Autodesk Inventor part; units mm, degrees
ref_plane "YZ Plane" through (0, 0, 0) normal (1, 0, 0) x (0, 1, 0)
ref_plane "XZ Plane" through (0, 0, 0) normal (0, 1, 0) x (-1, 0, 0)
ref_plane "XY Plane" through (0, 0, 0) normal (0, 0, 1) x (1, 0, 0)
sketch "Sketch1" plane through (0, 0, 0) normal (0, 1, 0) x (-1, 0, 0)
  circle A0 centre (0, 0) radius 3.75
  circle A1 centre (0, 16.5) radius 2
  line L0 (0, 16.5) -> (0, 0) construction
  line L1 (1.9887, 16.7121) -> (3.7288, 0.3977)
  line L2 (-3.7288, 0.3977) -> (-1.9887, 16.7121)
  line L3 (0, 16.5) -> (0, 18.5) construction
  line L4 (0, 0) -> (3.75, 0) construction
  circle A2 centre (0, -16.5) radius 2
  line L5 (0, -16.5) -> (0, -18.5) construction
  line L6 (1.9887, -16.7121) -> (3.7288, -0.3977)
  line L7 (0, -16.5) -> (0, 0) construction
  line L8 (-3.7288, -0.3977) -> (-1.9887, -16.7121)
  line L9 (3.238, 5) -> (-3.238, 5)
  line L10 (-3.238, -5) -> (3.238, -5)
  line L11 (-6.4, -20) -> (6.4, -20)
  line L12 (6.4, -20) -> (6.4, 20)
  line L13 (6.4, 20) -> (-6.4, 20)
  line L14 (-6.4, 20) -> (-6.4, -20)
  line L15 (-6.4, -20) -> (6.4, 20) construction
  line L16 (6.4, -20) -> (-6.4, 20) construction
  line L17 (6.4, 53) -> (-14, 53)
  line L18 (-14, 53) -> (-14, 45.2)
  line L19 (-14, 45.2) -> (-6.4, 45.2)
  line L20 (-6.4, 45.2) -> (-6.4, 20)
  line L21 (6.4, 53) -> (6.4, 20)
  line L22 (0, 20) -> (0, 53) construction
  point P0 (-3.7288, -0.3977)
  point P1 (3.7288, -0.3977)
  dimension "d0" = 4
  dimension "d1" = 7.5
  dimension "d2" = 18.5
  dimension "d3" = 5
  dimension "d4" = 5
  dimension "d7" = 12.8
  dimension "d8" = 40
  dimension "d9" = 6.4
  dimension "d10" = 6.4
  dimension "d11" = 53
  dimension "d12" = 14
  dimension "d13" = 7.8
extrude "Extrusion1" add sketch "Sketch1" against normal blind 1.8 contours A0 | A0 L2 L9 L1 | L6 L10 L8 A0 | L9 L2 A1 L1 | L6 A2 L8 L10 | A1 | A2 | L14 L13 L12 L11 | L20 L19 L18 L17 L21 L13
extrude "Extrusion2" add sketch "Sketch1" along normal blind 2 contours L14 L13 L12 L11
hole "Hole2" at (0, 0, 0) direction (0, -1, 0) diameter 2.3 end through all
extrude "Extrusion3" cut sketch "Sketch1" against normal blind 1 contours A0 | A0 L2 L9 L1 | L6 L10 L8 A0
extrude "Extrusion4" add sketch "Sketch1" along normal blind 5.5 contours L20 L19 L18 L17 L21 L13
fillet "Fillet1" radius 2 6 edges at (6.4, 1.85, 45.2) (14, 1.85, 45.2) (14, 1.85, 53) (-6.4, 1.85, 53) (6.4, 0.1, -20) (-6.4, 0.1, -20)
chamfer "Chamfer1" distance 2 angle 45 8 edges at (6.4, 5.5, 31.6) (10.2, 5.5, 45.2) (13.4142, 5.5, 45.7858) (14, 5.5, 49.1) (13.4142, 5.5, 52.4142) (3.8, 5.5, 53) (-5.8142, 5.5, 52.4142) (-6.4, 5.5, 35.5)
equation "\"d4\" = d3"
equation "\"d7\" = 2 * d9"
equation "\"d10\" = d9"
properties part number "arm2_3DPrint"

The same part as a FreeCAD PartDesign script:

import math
import FreeCAD as App
import Part
import Sketcher

V = App.Vector


def edges_at(feature, points):
    """Names of the edges that pass closest to the given points."""
    edges = feature.Shape.Edges
    near = lambda p: min(range(len(edges)), key=lambda i: edges[i].distToShape(Part.Vertex(*p))[0])
    return sorted({f"Edge{near(p) + 1}" for p in points})


def add_polygon(sketch, points):
    """Adds a closed chain of lines whose ends are joined by coincident constraints."""
    first, n = sketch.GeometryCount, len(points)
    for a, b in zip(points, points[1:] + points[:1]):
        sketch.addGeometry(Part.LineSegment(App.Vector(*a, 0), App.Vector(*b, 0)), False)
    for i in range(n):
        sketch.addConstraint(Sketcher.Constraint("Coincident", first + i, 2, first + (i + 1) % n, 1))

doc = App.newDocument("Part")
body = doc.addObject("PartDesign::Body", "Body")

# Sketch on XZ plane
sketch1 = body.newObject("Sketcher::SketchObject", "Sketch")
sketch1.AttachmentSupport = (doc.getObject("XZ_Plane"), [""])
sketch1.MapMode = "FlatFace"
add_polygon(sketch1, [(6.4, -20), (-6.4, -20), (-6.4, 53), (14, 53), (14, 45.2), (6.4, 45.2)])  # lines 0-5
sketch1.addConstraint([
    Sketcher.Constraint("Horizontal", 0),
    Sketcher.Constraint("Vertical", 1),
    Sketcher.Constraint("Horizontal", 2),
    Sketcher.Constraint("Vertical", 3),
    Sketcher.Constraint("Horizontal", 4),
    Sketcher.Constraint("Vertical", 5),
    Sketcher.Constraint("DistanceX", 0, 2, 0, 1, 12.8),
    Sketcher.Constraint("DistanceY", 3, 2, 3, 1, 7.8),
    Sketcher.Constraint("DistanceY", -1, 1, 1, 2, 53.0),
    Sketcher.Constraint("DistanceX", -1, 1, 2, 2, 14.0),
    Sketcher.Constraint("DistanceX", 0, 2, -1, 1, 6.4),
    Sketcher.Constraint("DistanceY", 1, 1, 1, 2, 73.0),
])
pad1 = body.newObject("PartDesign::Pad", "Pad")
pad1.Profile = sketch1
pad1.Length = 1.8

# Sketch on XZ plane
sketch2 = body.newObject("Sketcher::SketchObject", "Sketch001")
sketch2.AttachmentSupport = (doc.getObject("XZ_Plane"), [""])
sketch2.MapMode = "FlatFace"
add_polygon(sketch2, [(6.4, 20), (6.4, -20), (-6.4, -20), (-6.4, 20)])  # lines 0-3
sketch2.addGeometry(Part.ArcOfCircle(Part.Circle(V(0, 0, 0), V(0, 0, 1), 3.75), math.radians(173.912059), math.radians(186.087941)), False)  # 4
sketch2.addGeometry(Part.LineSegment(V(-3.7288, -0.3977, 0), V(-1.9887, -16.7121, 0)), False)  # 5
sketch2.addGeometry(Part.ArcOfCircle(Part.Circle(V(0, -16.5, 0), V(0, 0, 1), 2), math.radians(-173.912269), math.radians(-6.087731)), False)  # 6
sketch2.addGeometry(Part.LineSegment(V(1.9887, -16.7121, 0), V(3.7288, -0.3977, 0)), False)  # 7
sketch2.addGeometry(Part.ArcOfCircle(Part.Circle(V(0, 0, 0), V(0, 0, 1), 3.75), math.radians(-6.087941), math.radians(6.087941)), False)  # 8
sketch2.addGeometry(Part.LineSegment(V(3.7288, 0.3977, 0), V(1.9887, 16.7121, 0)), False)  # 9
sketch2.addGeometry(Part.ArcOfCircle(Part.Circle(V(0, 16.5, 0), V(0, 0, 1), 2), math.radians(6.087731), math.radians(173.912269)), False)  # 10
sketch2.addGeometry(Part.LineSegment(V(-1.9887, 16.7121, 0), V(-3.7288, 0.3977, 0)), False)  # 11
sketch2.addConstraint([
    Sketcher.Constraint("Tangent", 4, 2, 5, 1),
    Sketcher.Constraint("Tangent", 5, 2, 6, 1),
    Sketcher.Constraint("Tangent", 6, 2, 7, 1),
    Sketcher.Constraint("Tangent", 7, 2, 8, 1),
    Sketcher.Constraint("Tangent", 8, 2, 9, 1),
    Sketcher.Constraint("Tangent", 9, 2, 10, 1),
    Sketcher.Constraint("Tangent", 10, 2, 11, 1),
    Sketcher.Constraint("Tangent", 11, 2, 4, 1),
    Sketcher.Constraint("Vertical", 0),
    Sketcher.Constraint("Horizontal", 1),
    Sketcher.Constraint("Vertical", 2),
    Sketcher.Constraint("Horizontal", 3),
    Sketcher.Constraint("Coincident", 4, 3, -1, 1),
    Sketcher.Constraint("Coincident", 8, 3, -1, 1),
    Sketcher.Constraint("Equal", 4, 8),
    Sketcher.Constraint("Equal", 6, 10),
    Sketcher.Constraint("Symmetric", 6, 3, 10, 3, -1, 1),
    Sketcher.Constraint("Symmetric", 0, 2, 2, 2, -1, 1),
    Sketcher.Constraint("PointOnObject", 6, 3, -2),
    Sketcher.Constraint("Radius", 6, 2.0),
    Sketcher.Constraint("DistanceY", 0, 2, 0, 1, 40.0),
    Sketcher.Constraint("Radius", 4, 3.75),
    Sketcher.Constraint("DistanceX", 1, 2, 1, 1, 12.8),
    Sketcher.Constraint("DistanceY", 6, 3, 10, 3, 33.0),
])
pad2 = body.newObject("PartDesign::Pad", "Pad001")
pad2.Profile = sketch2
pad2.Length = 2
pad2.Reversed = True

# Sketch on XZ plane
sketch3 = body.newObject("Sketcher::SketchObject", "Sketch002")
sketch3.AttachmentSupport = (doc.getObject("XZ_Plane"), [""])
sketch3.MapMode = "FlatFace"
sketch3.addGeometry(Part.Circle(V(0, 0, 0), V(0, 0, 1), 1.15), False)
sketch3.addConstraint([
    Sketcher.Constraint("Coincident", 0, 3, -1, 1),
    Sketcher.Constraint("Diameter", 0, 2.3),
])
doc.recompute()
hole = body.newObject("PartDesign::Hole", "Hole")
hole.Profile = sketch3
hole.ThreadType = "None"
hole.Diameter = 2.3
hole.DepthType = "ThroughAll"
hole.Reversed = True

# Sketch on XZ plane
sketch4 = body.newObject("Sketcher::SketchObject", "Sketch003")
sketch4.AttachmentSupport = (doc.getObject("XZ_Plane"), [""])
sketch4.MapMode = "FlatFace"
sketch4.addGeometry([
    Part.ArcOfCircle(Part.Circle(V(0, 0, 0), V(0, 0, 1), 3.75), math.radians(173.912059), math.radians(186.087941)),  # 0
    Part.LineSegment(V(-3.7288, 0.3977, 0), V(-3.237918, 4.999991, 0)),  # 1
    Part.LineSegment(V(-3.238, 5, 0), V(3.238, 5, 0)),  # 2
    Part.LineSegment(V(3.237918, 4.999991, 0), V(3.7288, 0.3977, 0)),  # 3
    Part.ArcOfCircle(Part.Circle(V(0, 0, 0), V(0, 0, 1), 3.75), math.radians(-6.087941), math.radians(6.087941)),  # 4
    Part.LineSegment(V(3.7288, -0.3977, 0), V(3.237918, -4.999991, 0)),  # 5
    Part.LineSegment(V(3.238, -5, 0), V(-3.238, -5, 0)),  # 6
    Part.LineSegment(V(-3.237918, -4.999991, 0), V(-3.7288, -0.3977, 0)),  # 7
], False)
sketch4.addConstraint([
    Sketcher.Constraint("Tangent", 0, 1, 1, 1),
    Sketcher.Constraint("Coincident", 1, 2, 2, 1),
    Sketcher.Constraint("Coincident", 2, 2, 3, 1),
    Sketcher.Constraint("Tangent", 3, 2, 4, 2),
    Sketcher.Constraint("Tangent", 4, 1, 5, 1),
    Sketcher.Constraint("Coincident", 5, 2, 6, 1),
    Sketcher.Constraint("Coincident", 6, 2, 7, 1),
    Sketcher.Constraint("Tangent", 7, 2, 0, 2),
    Sketcher.Constraint("Horizontal", 2),
    Sketcher.Constraint("Horizontal", 6),
    Sketcher.Constraint("Coincident", 0, 3, -1, 1),
    Sketcher.Constraint("Coincident", 4, 3, -1, 1),
    Sketcher.Constraint("Equal", 0, 4),
    Sketcher.Constraint("Symmetric", 1, 2, 5, 2, -1, 1),
    Sketcher.Constraint("Parallel", 3, 7),
    Sketcher.Constraint("Horizontal", 0, 1, 3, 2),
    Sketcher.Constraint("Radius", 0, 3.75),
    Sketcher.Constraint("DistanceY", -1, 1, 1, 2, 5.0),
    Sketcher.Constraint("DistanceX", 2, 1, 2, 2, 6.476),
])
pocket1 = body.newObject("PartDesign::Pocket", "Pocket")
pocket1.Profile = sketch4
pocket1.Length = 1
pocket1.Reversed = True

# Sketch on XZ plane
sketch5 = body.newObject("Sketcher::SketchObject", "Sketch004")
sketch5.AttachmentSupport = (doc.getObject("XZ_Plane"), [""])
sketch5.MapMode = "FlatFace"
add_polygon(sketch5, [(6.4, 45.2), (6.4, 20), (-6.4, 20), (-6.4, 53), (14, 53), (14, 45.2)])  # lines 0-5
sketch5.addConstraint([
    Sketcher.Constraint("Vertical", 0),
    Sketcher.Constraint("Horizontal", 1),
    Sketcher.Constraint("Vertical", 2),
    Sketcher.Constraint("Horizontal", 3),
    Sketcher.Constraint("Vertical", 4),
    Sketcher.Constraint("Horizontal", 5),
    Sketcher.Constraint("DistanceX", 1, 2, 1, 1, 12.8),
    Sketcher.Constraint("DistanceY", 4, 2, 4, 1, 7.8),
    Sketcher.Constraint("DistanceY", -1, 1, 2, 2, 53.0),
    Sketcher.Constraint("DistanceX", -1, 1, 3, 2, 14.0),
    Sketcher.Constraint("DistanceX", -1, 1, 0, 2, 6.4),
    Sketcher.Constraint("DistanceY", 2, 1, 2, 2, 33.0),
])
pad3 = body.newObject("PartDesign::Pad", "Pad002")
pad3.Profile = sketch5
pad3.Length = 5.5
pad3.Reversed = True
doc.recompute()

fillet = body.newObject("PartDesign::Fillet", "Fillet")
fillet.Base = (pad3, edges_at(pad3, [
    (6.4, 1.85, 45.2),
    (14, 1.85, 45.2),
    (14, 1.85, 53),
    (-6.4, 1.85, 53),
    (6.4, 0.1, -20),
    (-6.4, 0.1, -20),
]))
fillet.Radius = 2
doc.recompute()

chamfer = body.newObject("PartDesign::Chamfer", "Chamfer")
chamfer.Base = (fillet, edges_at(fillet, [
    (6.4, 5.5, 31.6),
    (10.2, 5.5, 45.2),
    (13.414, 5.5, 45.786),
    (14, 5.5, 49.1),
    (13.414, 5.5, 52.414),
    (3.8, 5.5, 53),
    (-5.814, 5.5, 52.414),
    (-6.4, 5.5, 35.5),
]))
chamfer.Size = 2

doc.recompute()
